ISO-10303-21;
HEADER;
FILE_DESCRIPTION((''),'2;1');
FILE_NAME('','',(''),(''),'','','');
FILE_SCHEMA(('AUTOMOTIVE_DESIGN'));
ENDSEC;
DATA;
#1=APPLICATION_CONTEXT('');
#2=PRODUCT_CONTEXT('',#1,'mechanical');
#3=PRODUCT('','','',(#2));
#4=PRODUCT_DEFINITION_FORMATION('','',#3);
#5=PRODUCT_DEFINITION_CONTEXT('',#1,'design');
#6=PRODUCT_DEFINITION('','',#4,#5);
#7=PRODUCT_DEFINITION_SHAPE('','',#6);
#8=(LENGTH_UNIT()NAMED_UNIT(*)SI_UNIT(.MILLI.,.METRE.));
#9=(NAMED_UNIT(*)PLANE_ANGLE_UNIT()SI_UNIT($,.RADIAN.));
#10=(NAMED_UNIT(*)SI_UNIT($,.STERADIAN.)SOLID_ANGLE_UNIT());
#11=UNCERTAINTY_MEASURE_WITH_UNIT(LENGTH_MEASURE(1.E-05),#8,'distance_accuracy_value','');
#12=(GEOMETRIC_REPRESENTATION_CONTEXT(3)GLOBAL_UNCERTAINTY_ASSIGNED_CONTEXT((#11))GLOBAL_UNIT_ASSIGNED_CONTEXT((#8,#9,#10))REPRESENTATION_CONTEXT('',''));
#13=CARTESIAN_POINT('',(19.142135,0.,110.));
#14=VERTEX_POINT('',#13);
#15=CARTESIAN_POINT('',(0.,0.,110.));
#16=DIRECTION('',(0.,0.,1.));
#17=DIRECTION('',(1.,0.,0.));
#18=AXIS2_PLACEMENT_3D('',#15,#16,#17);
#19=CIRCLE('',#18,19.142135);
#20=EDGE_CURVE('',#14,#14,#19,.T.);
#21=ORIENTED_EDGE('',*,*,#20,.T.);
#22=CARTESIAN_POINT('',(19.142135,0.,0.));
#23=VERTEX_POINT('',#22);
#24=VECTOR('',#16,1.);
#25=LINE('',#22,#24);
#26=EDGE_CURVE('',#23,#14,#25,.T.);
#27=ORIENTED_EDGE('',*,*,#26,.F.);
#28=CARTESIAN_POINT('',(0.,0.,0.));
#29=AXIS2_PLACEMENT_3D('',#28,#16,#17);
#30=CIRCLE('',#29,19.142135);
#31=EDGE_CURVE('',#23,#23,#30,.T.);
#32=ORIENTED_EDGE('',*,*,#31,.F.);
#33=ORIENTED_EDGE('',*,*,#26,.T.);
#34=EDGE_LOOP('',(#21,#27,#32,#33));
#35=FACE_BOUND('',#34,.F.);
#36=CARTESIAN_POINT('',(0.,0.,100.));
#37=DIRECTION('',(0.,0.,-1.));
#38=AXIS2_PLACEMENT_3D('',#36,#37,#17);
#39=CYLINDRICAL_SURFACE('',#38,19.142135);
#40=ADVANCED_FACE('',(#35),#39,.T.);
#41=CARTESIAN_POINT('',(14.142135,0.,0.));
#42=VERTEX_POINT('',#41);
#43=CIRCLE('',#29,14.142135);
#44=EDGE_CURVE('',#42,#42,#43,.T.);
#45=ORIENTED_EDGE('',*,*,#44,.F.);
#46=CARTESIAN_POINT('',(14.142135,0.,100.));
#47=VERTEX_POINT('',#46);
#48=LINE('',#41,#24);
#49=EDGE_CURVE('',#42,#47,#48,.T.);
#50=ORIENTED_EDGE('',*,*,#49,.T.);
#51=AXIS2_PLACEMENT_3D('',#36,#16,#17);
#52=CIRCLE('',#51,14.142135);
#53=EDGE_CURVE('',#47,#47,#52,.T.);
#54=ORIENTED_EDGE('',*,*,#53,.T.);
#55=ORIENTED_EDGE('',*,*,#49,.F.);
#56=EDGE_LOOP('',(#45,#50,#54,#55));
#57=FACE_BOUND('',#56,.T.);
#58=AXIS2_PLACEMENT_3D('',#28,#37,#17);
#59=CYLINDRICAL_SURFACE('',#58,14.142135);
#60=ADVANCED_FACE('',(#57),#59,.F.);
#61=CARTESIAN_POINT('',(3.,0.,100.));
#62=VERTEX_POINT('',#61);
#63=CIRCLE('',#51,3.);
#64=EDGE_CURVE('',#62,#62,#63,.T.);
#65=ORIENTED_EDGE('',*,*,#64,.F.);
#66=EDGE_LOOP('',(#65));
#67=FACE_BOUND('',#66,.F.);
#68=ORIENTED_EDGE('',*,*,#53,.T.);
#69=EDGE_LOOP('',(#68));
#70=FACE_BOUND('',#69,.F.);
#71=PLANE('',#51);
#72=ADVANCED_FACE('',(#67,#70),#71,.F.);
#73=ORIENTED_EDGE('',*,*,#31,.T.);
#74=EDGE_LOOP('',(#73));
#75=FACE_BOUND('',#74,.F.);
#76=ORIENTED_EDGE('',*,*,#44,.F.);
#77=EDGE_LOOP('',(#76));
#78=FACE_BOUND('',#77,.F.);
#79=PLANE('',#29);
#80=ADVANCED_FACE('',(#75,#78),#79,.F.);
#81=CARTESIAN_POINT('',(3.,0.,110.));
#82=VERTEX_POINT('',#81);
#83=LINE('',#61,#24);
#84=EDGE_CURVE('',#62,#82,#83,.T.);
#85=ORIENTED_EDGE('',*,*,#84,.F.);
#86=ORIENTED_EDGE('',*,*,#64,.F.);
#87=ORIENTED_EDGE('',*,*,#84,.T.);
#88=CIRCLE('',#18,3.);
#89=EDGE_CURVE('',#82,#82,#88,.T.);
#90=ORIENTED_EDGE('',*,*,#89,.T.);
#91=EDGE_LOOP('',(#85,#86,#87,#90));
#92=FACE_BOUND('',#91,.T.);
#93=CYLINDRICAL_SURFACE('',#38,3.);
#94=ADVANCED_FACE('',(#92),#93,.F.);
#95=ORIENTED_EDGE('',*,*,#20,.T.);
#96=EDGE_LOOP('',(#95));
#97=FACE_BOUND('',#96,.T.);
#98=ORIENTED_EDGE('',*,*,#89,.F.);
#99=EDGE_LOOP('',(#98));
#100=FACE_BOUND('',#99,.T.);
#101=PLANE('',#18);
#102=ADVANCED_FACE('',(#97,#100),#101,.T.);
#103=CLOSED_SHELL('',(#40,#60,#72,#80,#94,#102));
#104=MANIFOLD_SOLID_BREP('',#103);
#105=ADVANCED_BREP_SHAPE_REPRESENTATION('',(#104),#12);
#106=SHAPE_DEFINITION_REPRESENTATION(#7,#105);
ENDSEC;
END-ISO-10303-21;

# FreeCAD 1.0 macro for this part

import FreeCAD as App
import Part
import Sketcher

V = App.Vector
Q = App.Units.Quantity

doc = App.newDocument("Part")
params = doc.addObject("Spreadsheet::Sheet", "Params")
for row, (alias, value) in enumerate([
    ("pad1_length", "100 mm"),
    ("sketch2_diameter", "6 mm"),
    ("pad2_length", "10 mm"),
], start=1):
    params.set(f"A{row}", alias)
    params.set(f"B{row}", "=" + value)
    params.setAlias(f"B{row}", alias)

body = doc.addObject("PartDesign::Body", "Body")

# Sketch on XY plane
sketch1 = body.newObject("Sketcher::SketchObject", "Sketch")
sketch1.AttachmentSupport = (doc.getObject("XY_Plane"), [""])
sketch1.MapMode = "FlatFace"
sketch1.addGeometry(Part.Circle(V(0, 0, 0), V(0, 0, 1), 19), False)
sketch1.addGeometry(Part.Circle(V(0, 0, 0), V(0, 0, 1), 14), False)
sketch1.addConstraint(Sketcher.Constraint("Coincident", 0, 3, -1, 1))
sketch1.addConstraint(Sketcher.Constraint("Coincident", 1, 3, -1, 1))
sketch1.addConstraint(Sketcher.Constraint("Diameter", 0, Q("38.28427 mm")))
sketch1.addConstraint(Sketcher.Constraint("Diameter", 1, Q("28.28427 mm")))
pad1 = body.newObject("PartDesign::Pad", "Pad")
pad1.Profile = sketch1
pad1.setExpression("Length", "Params.pad1_length")

# Sketch on XY plane
sketch2 = body.newObject("Sketcher::SketchObject", "Sketch001")
sketch2.AttachmentSupport = (doc.getObject("XY_Plane"), [""])
sketch2.MapMode = "FlatFace"
sketch2.AttachmentOffset = App.Placement(V(0, 0, 100), App.Rotation())
sketch2.addGeometry(Part.Circle(V(0, 0, 0), V(0, 0, 1), 19.1), False)
sketch2.addGeometry(Part.Circle(V(0, 0, 0), V(0, 0, 1), 3), False)
sketch2.addConstraint(Sketcher.Constraint("Coincident", 0, 3, -1, 1))
sketch2.addConstraint(Sketcher.Constraint("Coincident", 1, 3, -1, 1))
sketch2.addConstraint(Sketcher.Constraint("Diameter", 1, Q("6 mm")))
sketch2.addConstraint(Sketcher.Constraint("Diameter", 0, Q("38.28427 mm")))
sketch2.setExpression("Constraints[2]", "Params.sketch2_diameter")
pad2 = body.newObject("PartDesign::Pad", "Pad001")
pad2.Profile = sketch2
pad2.setExpression("Length", "Params.pad2_length")

doc.recompute()
